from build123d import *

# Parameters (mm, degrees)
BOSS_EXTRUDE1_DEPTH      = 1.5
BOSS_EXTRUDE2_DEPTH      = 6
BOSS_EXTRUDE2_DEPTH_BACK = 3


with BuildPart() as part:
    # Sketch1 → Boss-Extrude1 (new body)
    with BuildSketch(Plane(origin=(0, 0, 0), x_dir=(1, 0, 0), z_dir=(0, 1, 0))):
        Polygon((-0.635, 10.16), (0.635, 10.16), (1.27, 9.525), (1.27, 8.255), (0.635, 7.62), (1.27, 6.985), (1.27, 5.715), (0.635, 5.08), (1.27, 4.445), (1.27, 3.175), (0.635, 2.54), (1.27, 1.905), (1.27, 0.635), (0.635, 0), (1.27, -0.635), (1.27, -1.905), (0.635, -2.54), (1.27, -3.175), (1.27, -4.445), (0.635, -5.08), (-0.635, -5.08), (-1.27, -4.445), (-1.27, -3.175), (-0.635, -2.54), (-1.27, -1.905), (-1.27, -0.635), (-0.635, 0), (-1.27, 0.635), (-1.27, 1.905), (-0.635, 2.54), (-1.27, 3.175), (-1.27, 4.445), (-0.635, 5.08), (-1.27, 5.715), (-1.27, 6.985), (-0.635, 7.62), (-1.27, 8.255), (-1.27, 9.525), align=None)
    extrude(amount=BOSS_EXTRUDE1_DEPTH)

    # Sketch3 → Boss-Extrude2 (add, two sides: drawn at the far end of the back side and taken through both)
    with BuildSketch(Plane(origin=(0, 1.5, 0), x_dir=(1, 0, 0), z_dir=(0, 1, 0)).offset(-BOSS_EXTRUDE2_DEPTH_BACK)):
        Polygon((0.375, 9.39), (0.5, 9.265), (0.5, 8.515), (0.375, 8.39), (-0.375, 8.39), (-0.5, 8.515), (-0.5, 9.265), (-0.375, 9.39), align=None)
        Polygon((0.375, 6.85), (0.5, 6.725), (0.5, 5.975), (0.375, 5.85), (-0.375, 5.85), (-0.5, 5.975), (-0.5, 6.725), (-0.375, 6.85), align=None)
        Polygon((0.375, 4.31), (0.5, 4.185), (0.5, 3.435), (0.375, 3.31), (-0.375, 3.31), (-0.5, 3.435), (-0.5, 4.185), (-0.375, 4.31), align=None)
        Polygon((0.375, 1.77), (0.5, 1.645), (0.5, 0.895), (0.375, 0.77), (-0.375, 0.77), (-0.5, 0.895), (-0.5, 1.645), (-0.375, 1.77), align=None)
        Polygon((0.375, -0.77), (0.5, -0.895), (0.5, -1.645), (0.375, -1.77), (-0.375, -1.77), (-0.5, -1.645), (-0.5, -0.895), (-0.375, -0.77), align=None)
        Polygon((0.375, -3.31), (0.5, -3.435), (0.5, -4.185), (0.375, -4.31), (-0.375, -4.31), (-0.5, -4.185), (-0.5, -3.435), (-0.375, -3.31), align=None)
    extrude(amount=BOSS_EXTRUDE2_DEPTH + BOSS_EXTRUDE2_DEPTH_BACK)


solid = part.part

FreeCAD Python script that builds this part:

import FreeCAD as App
import Part
import Sketcher

V = App.Vector

doc = App.newDocument("Part")
body = doc.addObject("PartDesign::Body", "Body")

sketch1 = body.newObject("Sketcher::SketchObject", "Sketch")
sketch1.AttachmentSupport = (doc.getObject("XZ_Plane"), [""])
sketch1.MapMode = "FlatFace"
sketch1.addGeometry(Part.LineSegment(V(0.6, -10.2, 0), V(-0.6, -10.2, 0)), False)
sketch1.addGeometry(Part.LineSegment(V(-0.6, -10.2, 0), V(-1.3, -9.5, 0)), False)
sketch1.addGeometry(Part.LineSegment(V(-1.3, -9.5, 0), V(-1.3, -8.3, 0)), False)
sketch1.addGeometry(Part.LineSegment(V(-1.3, -8.3, 0), V(-0.6, -7.6, 0)), False)
sketch1.addGeometry(Part.LineSegment(V(-0.6, -7.6, 0), V(-1.3, -7, 0)), False)
sketch1.addGeometry(Part.LineSegment(V(-1.3, -7, 0), V(-1.3, -5.7, 0)), False)
sketch1.addGeometry(Part.LineSegment(V(-1.3, -5.7, 0), V(-0.6, -5.1, 0)), False)
sketch1.addGeometry(Part.LineSegment(V(-0.6, -5.1, 0), V(-1.3, -4.4, 0)), False)
sketch1.addGeometry(Part.LineSegment(V(-1.3, -4.4, 0), V(-1.3, -3.2, 0)), False)
sketch1.addGeometry(Part.LineSegment(V(-1.3, -3.2, 0), V(-0.6, -2.5, 0)), False)
sketch1.addGeometry(Part.LineSegment(V(-0.6, -2.5, 0), V(-1.3, -1.9, 0)), False)
sketch1.addGeometry(Part.LineSegment(V(-1.3, -1.9, 0), V(-1.3, -0.6, 0)), False)
sketch1.addGeometry(Part.LineSegment(V(-1.3, -0.6, 0), V(-0.6, 0, 0)), False)
sketch1.addGeometry(Part.LineSegment(V(-0.6, 0, 0), V(-1.3, 0.6, 0)), False)
sketch1.addGeometry(Part.LineSegment(V(-1.3, 0.6, 0), V(-1.3, 1.9, 0)), False)
sketch1.addGeometry(Part.LineSegment(V(-1.3, 1.9, 0), V(-0.6, 2.5, 0)), False)
sketch1.addGeometry(Part.LineSegment(V(-0.6, 2.5, 0), V(-1.3, 3.2, 0)), False)
sketch1.addGeometry(Part.LineSegment(V(-1.3, 3.2, 0), V(-1.3, 4.4, 0)), False)
sketch1.addGeometry(Part.LineSegment(V(-1.3, 4.4, 0), V(-0.6, 5.1, 0)), False)
sketch1.addGeometry(Part.LineSegment(V(-0.6, 5.1, 0), V(0.6, 5.1, 0)), False)
sketch1.addGeometry(Part.LineSegment(V(0.6, 5.1, 0), V(1.3, 4.4, 0)), False)
sketch1.addGeometry(Part.LineSegment(V(1.3, 4.4, 0), V(1.3, 3.2, 0)), False)
sketch1.addGeometry(Part.LineSegment(V(1.3, 3.2, 0), V(0.6, 2.5, 0)), False)
sketch1.addGeometry(Part.LineSegment(V(0.6, 2.5, 0), V(1.3, 1.9, 0)), False)
sketch1.addGeometry(Part.LineSegment(V(1.3, 1.9, 0), V(1.3, 0.6, 0)), False)
sketch1.addGeometry(Part.LineSegment(V(1.3, 0.6, 0), V(0.6, 0, 0)), False)
sketch1.addGeometry(Part.LineSegment(V(0.6, 0, 0), V(1.3, -0.6, 0)), False)
sketch1.addGeometry(Part.LineSegment(V(1.3, -0.6, 0), V(1.3, -1.9, 0)), False)
sketch1.addGeometry(Part.LineSegment(V(1.3, -1.9, 0), V(0.6, -2.5, 0)), False)
sketch1.addGeometry(Part.LineSegment(V(0.6, -2.5, 0), V(1.3, -3.2, 0)), False)
sketch1.addGeometry(Part.LineSegment(V(1.3, -3.2, 0), V(1.3, -4.4, 0)), False)
sketch1.addGeometry(Part.LineSegment(V(1.3, -4.4, 0), V(0.6, -5.1, 0)), False)
sketch1.addGeometry(Part.LineSegment(V(0.6, -5.1, 0), V(1.3, -5.7, 0)), False)
sketch1.addGeometry(Part.LineSegment(V(1.3, -5.7, 0), V(1.3, -7, 0)), False)
sketch1.addGeometry(Part.LineSegment(V(1.3, -7, 0), V(0.6, -7.6, 0)), False)
sketch1.addGeometry(Part.LineSegment(V(0.6, -7.6, 0), V(1.3, -8.3, 0)), False)
sketch1.addGeometry(Part.LineSegment(V(1.3, -8.3, 0), V(1.3, -9.5, 0)), False)
sketch1.addGeometry(Part.LineSegment(V(1.3, -9.5, 0), V(0.6, -10.2, 0)), False)
sketch1.addConstraint(Sketcher.Constraint("Coincident", 0, 2, 1, 1))
sketch1.addConstraint(Sketcher.Constraint("Coincident", 1, 2, 2, 1))
sketch1.addConstraint(Sketcher.Constraint("Coincident", 2, 2, 3, 1))
sketch1.addConstraint(Sketcher.Constraint("Coincident", 3, 2, 4, 1))
sketch1.addConstraint(Sketcher.Constraint("Coincident", 4, 2, 5, 1))
sketch1.addConstraint(Sketcher.Constraint("Coincident", 5, 2, 6, 1))
sketch1.addConstraint(Sketcher.Constraint("Coincident", 6, 2, 7, 1))
sketch1.addConstraint(Sketcher.Constraint("Coincident", 7, 2, 8, 1))
sketch1.addConstraint(Sketcher.Constraint("Coincident", 8, 2, 9, 1))
sketch1.addConstraint(Sketcher.Constraint("Coincident", 9, 2, 10, 1))
sketch1.addConstraint(Sketcher.Constraint("Coincident", 10, 2, 11, 1))
sketch1.addConstraint(Sketcher.Constraint("Coincident", 11, 2, 12, 1))
sketch1.addConstraint(Sketcher.Constraint("Coincident", 12, 2, 13, 1))
sketch1.addConstraint(Sketcher.Constraint("Coincident", 13, 2, 14, 1))
sketch1.addConstraint(Sketcher.Constraint("Coincident", 14, 2, 15, 1))
sketch1.addConstraint(Sketcher.Constraint("Coincident", 15, 2, 16, 1))
sketch1.addConstraint(Sketcher.Constraint("Coincident", 16, 2, 17, 1))
sketch1.addConstraint(Sketcher.Constraint("Coincident", 17, 2, 18, 1))
sketch1.addConstraint(Sketcher.Constraint("Coincident", 18, 2, 19, 1))
sketch1.addConstraint(Sketcher.Constraint("Coincident", 19, 2, 20, 1))
sketch1.addConstraint(Sketcher.Constraint("Coincident", 20, 2, 21, 1))
sketch1.addConstraint(Sketcher.Constraint("Coincident", 21, 2, 22, 1))
sketch1.addConstraint(Sketcher.Constraint("Coincident", 22, 2, 23, 1))
sketch1.addConstraint(Sketcher.Constraint("Coincident", 23, 2, 24, 1))
sketch1.addConstraint(Sketcher.Constraint("Coincident", 24, 2, 25, 1))
sketch1.addConstraint(Sketcher.Constraint("Coincident", 25, 2, 26, 1))
sketch1.addConstraint(Sketcher.Constraint("Coincident", 26, 2, 27, 1))
sketch1.addConstraint(Sketcher.Constraint("Coincident", 27, 2, 28, 1))
sketch1.addConstraint(Sketcher.Constraint("Coincident", 28, 2, 29, 1))
sketch1.addConstraint(Sketcher.Constraint("Coincident", 29, 2, 30, 1))
sketch1.addConstraint(Sketcher.Constraint("Coincident", 30, 2, 31, 1))
sketch1.addConstraint(Sketcher.Constraint("Coincident", 31, 2, 32, 1))
sketch1.addConstraint(Sketcher.Constraint("Coincident", 32, 2, 33, 1))
sketch1.addConstraint(Sketcher.Constraint("Coincident", 33, 2, 34, 1))
sketch1.addConstraint(Sketcher.Constraint("Coincident", 34, 2, 35, 1))
sketch1.addConstraint(Sketcher.Constraint("Coincident", 35, 2, 36, 1))
sketch1.addConstraint(Sketcher.Constraint("Coincident", 36, 2, 37, 1))
sketch1.addConstraint(Sketcher.Constraint("Coincident", 37, 2, 0, 1))
sketch1.addConstraint(Sketcher.Constraint("Horizontal", 0))
sketch1.addConstraint(Sketcher.Constraint("Vertical", 2))
sketch1.addConstraint(Sketcher.Constraint("Vertical", 5))
sketch1.addConstraint(Sketcher.Constraint("Vertical", 8))
sketch1.addConstraint(Sketcher.Constraint("Vertical", 11))
sketch1.addConstraint(Sketcher.Constraint("Vertical", 14))
sketch1.addConstraint(Sketcher.Constraint("Vertical", 17))
sketch1.addConstraint(Sketcher.Constraint("Horizontal", 19))
sketch1.addConstraint(Sketcher.Constraint("Vertical", 21))
sketch1.addConstraint(Sketcher.Constraint("Vertical", 24))
sketch1.addConstraint(Sketcher.Constraint("Vertical", 27))
sketch1.addConstraint(Sketcher.Constraint("Vertical", 30))
sketch1.addConstraint(Sketcher.Constraint("Vertical", 33))
sketch1.addConstraint(Sketcher.Constraint("Vertical", 36))
sketch1.addConstraint(Sketcher.Constraint("Symmetric", 6, 2, 19, 2, -1, 1))
sketch1.addConstraint(Sketcher.Constraint("Symmetric", 7, 2, 20, 2, -1, 1))
sketch1.addConstraint(Sketcher.Constraint("Symmetric", 9, 2, 22, 2, -1, 1))
sketch1.addConstraint(Sketcher.Constraint("Symmetric", 10, 2, 23, 2, -1, 1))
sketch1.addConstraint(Sketcher.Constraint("Symmetric", 12, 2, 25, 2, -1, 1))
sketch1.addConstraint(Sketcher.Constraint("Symmetric", 13, 2, 26, 2, -1, 1))
sketch1.addConstraint(Sketcher.Constraint("Symmetric", 15, 2, 28, 2, -1, 1))
sketch1.addConstraint(Sketcher.Constraint("Symmetric", 16, 2, 29, 2, -1, 1))
sketch1.addConstraint(Sketcher.Constraint("Symmetric", 18, 2, 31, 2, -1, 1))
sketch1.addConstraint(Sketcher.Constraint("Symmetric", 17, 2, 20, 2, -2))
sketch1.addConstraint(Sketcher.Constraint("Symmetric", 15, 2, 22, 2, -2))
sketch1.addConstraint(Sketcher.Constraint("Symmetric", 14, 2, 23, 2, -2))
sketch1.addConstraint(Sketcher.Constraint("Symmetric", 5, 2, 32, 2, -2))
sketch1.addConstraint(Sketcher.Constraint("Symmetric", 3, 2, 34, 2, -2))
sketch1.addConstraint(Sketcher.Constraint("Symmetric", 2, 2, 35, 2, -2))
sketch1.addConstraint(Sketcher.Constraint("PointOnObject", 12, 2, -1))
sketch1.addConstraint(Sketcher.Constraint("Perpendicular", 1, 3))
sketch1.addConstraint(Sketcher.Constraint("Perpendicular", 3, 4))
sketch1.addConstraint(Sketcher.Constraint("Perpendicular", 4, 6))
sketch1.addConstraint(Sketcher.Constraint("Perpendicular", 6, 7))
sketch1.addConstraint(Sketcher.Constraint("Perpendicular", 7, 9))
sketch1.addConstraint(Sketcher.Constraint("Perpendicular", 9, 10))
sketch1.addConstraint(Sketcher.Constraint("Perpendicular", 10, 12))
sketch1.addConstraint(Sketcher.Constraint("Perpendicular", 12, 13))
sketch1.addConstraint(Sketcher.Constraint("Perpendicular", 13, 15))
sketch1.addConstraint(Sketcher.Constraint("Perpendicular", 15, 16))
sketch1.addConstraint(Sketcher.Constraint("Perpendicular", 16, 18))
sketch1.addConstraint(Sketcher.Constraint("Perpendicular", 20, 22))
sketch1.addConstraint(Sketcher.Constraint("Perpendicular", 23, 25))
sketch1.addConstraint(Sketcher.Constraint("Perpendicular", 26, 28))
sketch1.addConstraint(Sketcher.Constraint("Perpendicular", 29, 31))
sketch1.addConstraint(Sketcher.Constraint("Perpendicular", 32, 34))
sketch1.addConstraint(Sketcher.Constraint("Perpendicular", 35, 37))
sketch1.addConstraint(Sketcher.Constraint("Horizontal", 1, 2, 36, 2))
sketch1.addConstraint(Sketcher.Constraint("Vertical", 0, 2, 3, 2))
sketch1.addConstraint(Sketcher.Constraint("Vertical", 2, 2, 4, 2))
sketch1.addConstraint(Sketcher.Constraint("Vertical", 3, 2, 6, 2))
sketch1.addConstraint(Sketcher.Constraint("Vertical", 5, 2, 7, 2))
sketch1.addConstraint(Sketcher.Constraint("Vertical", 6, 2, 9, 2))
sketch1.addConstraint(Sketcher.Constraint("Vertical", 8, 2, 10, 2))
sketch1.addConstraint(Sketcher.Constraint("Vertical", 9, 2, 12, 2))
sketch1.addConstraint(Sketcher.Constraint("Equal", 19, 2))
sketch1.addConstraint(Sketcher.Constraint("Equal", 2, 5))
sketch1.addConstraint(Sketcher.Constraint("Equal", 5, 8))
sketch1.addConstraint(Sketcher.Constraint("Equal", 8, 11))
sketch1.addConstraint(Sketcher.Constraint("DistanceX", 0, 2, 0, 1, 1.27))
sketch1.addConstraint(Sketcher.Constraint("DistanceY", 0, 2, -1, 1, 10.16))
pad1 = body.newObject("PartDesign::Pad", "Pad")
pad1.Profile = sketch1
pad1.Length = 1.5
pad1.Reversed = True

sketch2 = body.newObject("Sketcher::SketchObject", "Sketch001")
sketch2.AttachmentSupport = (doc.getObject("XZ_Plane"), [""])
sketch2.MapMode = "FlatFace"
sketch2.AttachmentOffset = App.Placement(V(0, 0, -1.5), App.Rotation())
sketch2.addGeometry(Part.LineSegment(V(0.5, -9.27, 0), V(0.38, -9.39, 0)), False)
sketch2.addGeometry(Part.LineSegment(V(0.38, -9.39, 0), V(-0.38, -9.39, 0)), False)
sketch2.addGeometry(Part.LineSegment(V(-0.38, -9.39, 0), V(-0.5, -9.27, 0)), False)
sketch2.addGeometry(Part.LineSegment(V(-0.5, -9.27, 0), V(-0.5, -8.52, 0)), False)
sketch2.addGeometry(Part.LineSegment(V(-0.5, -8.52, 0), V(-0.38, -8.39, 0)), False)
sketch2.addGeometry(Part.LineSegment(V(-0.38, -8.39, 0), V(0.38, -8.39, 0)), False)
sketch2.addGeometry(Part.LineSegment(V(0.38, -8.39, 0), V(0.5, -8.52, 0)), False)
sketch2.addGeometry(Part.LineSegment(V(0.5, -8.52, 0), V(0.5, -9.27, 0)), False)
sketch2.addGeometry(Part.LineSegment(V(0.5, -6.72, 0), V(0.38, -6.85, 0)), False)
sketch2.addGeometry(Part.LineSegment(V(0.38, -6.85, 0), V(-0.38, -6.85, 0)), False)
sketch2.addGeometry(Part.LineSegment(V(-0.38, -6.85, 0), V(-0.5, -6.72, 0)), False)
sketch2.addGeometry(Part.LineSegment(V(-0.5, -6.72, 0), V(-0.5, -5.97, 0)), False)
sketch2.addGeometry(Part.LineSegment(V(-0.5, -5.97, 0), V(-0.38, -5.85, 0)), False)
sketch2.addGeometry(Part.LineSegment(V(-0.38, -5.85, 0), V(0.38, -5.85, 0)), False)
sketch2.addGeometry(Part.LineSegment(V(0.38, -5.85, 0), V(0.5, -5.97, 0)), False)
sketch2.addGeometry(Part.LineSegment(V(0.5, -5.97, 0), V(0.5, -6.72, 0)), False)
sketch2.addGeometry(Part.LineSegment(V(0.5, -4.18, 0), V(0.38, -4.31, 0)), False)
sketch2.addGeometry(Part.LineSegment(V(0.38, -4.31, 0), V(-0.38, -4.31, 0)), False)
sketch2.addGeometry(Part.LineSegment(V(-0.38, -4.31, 0), V(-0.5, -4.18, 0)), False)
sketch2.addGeometry(Part.LineSegment(V(-0.5, -4.18, 0), V(-0.5, -3.44, 0)), False)
sketch2.addGeometry(Part.LineSegment(V(-0.5, -3.44, 0), V(-0.38, -3.31, 0)), False)
sketch2.addGeometry(Part.LineSegment(V(-0.38, -3.31, 0), V(0.38, -3.31, 0)), False)
sketch2.addGeometry(Part.LineSegment(V(0.38, -3.31, 0), V(0.5, -3.44, 0)), False)
sketch2.addGeometry(Part.LineSegment(V(0.5, -3.44, 0), V(0.5, -4.18, 0)), False)
sketch2.addGeometry(Part.LineSegment(V(0.5, -1.65, 0), V(0.38, -1.77, 0)), False)
sketch2.addGeometry(Part.LineSegment(V(0.38, -1.77, 0), V(-0.38, -1.77, 0)), False)
sketch2.addGeometry(Part.LineSegment(V(-0.38, -1.77, 0), V(-0.5, -1.65, 0)), False)
sketch2.addGeometry(Part.LineSegment(V(-0.5, -1.65, 0), V(-0.5, -0.9, 0)), False)
sketch2.addGeometry(Part.LineSegment(V(-0.5, -0.9, 0), V(-0.38, -0.77, 0)), False)
sketch2.addGeometry(Part.LineSegment(V(-0.38, -0.77, 0), V(0.38, -0.77, 0)), False)
sketch2.addGeometry(Part.LineSegment(V(0.38, -0.77, 0), V(0.5, -0.9, 0)), False)
sketch2.addGeometry(Part.LineSegment(V(0.5, -0.9, 0), V(0.5, -1.65, 0)), False)
sketch2.addGeometry(Part.LineSegment(V(0.5, 0.9, 0), V(0.38, 0.77, 0)), False)
sketch2.addGeometry(Part.LineSegment(V(0.38, 0.77, 0), V(-0.38, 0.77, 0)), False)
sketch2.addGeometry(Part.LineSegment(V(-0.38, 0.77, 0), V(-0.5, 0.9, 0)), False)
sketch2.addGeometry(Part.LineSegment(V(-0.5, 0.9, 0), V(-0.5, 1.65, 0)), False)
sketch2.addGeometry(Part.LineSegment(V(-0.5, 1.65, 0), V(-0.38, 1.77, 0)), False)
sketch2.addGeometry(Part.LineSegment(V(-0.38, 1.77, 0), V(0.38, 1.77, 0)), False)
sketch2.addGeometry(Part.LineSegment(V(0.38, 1.77, 0), V(0.5, 1.65, 0)), False)
sketch2.addGeometry(Part.LineSegment(V(0.5, 1.65, 0), V(0.5, 0.9, 0)), False)
sketch2.addGeometry(Part.LineSegment(V(0.5, 3.44, 0), V(0.38, 3.31, 0)), False)
sketch2.addGeometry(Part.LineSegment(V(0.38, 3.31, 0), V(-0.38, 3.31, 0)), False)
sketch2.addGeometry(Part.LineSegment(V(-0.38, 3.31, 0), V(-0.5, 3.44, 0)), False)
sketch2.addGeometry(Part.LineSegment(V(-0.5, 3.44, 0), V(-0.5, 4.18, 0)), False)
sketch2.addGeometry(Part.LineSegment(V(-0.5, 4.18, 0), V(-0.38, 4.31, 0)), False)
sketch2.addGeometry(Part.LineSegment(V(-0.38, 4.31, 0), V(0.38, 4.31, 0)), False)
sketch2.addGeometry(Part.LineSegment(V(0.38, 4.31, 0), V(0.5, 4.18, 0)), False)
sketch2.addGeometry(Part.LineSegment(V(0.5, 4.18, 0), V(0.5, 3.44, 0)), False)
sketch2.addConstraint(Sketcher.Constraint("Coincident", 0, 2, 1, 1))
sketch2.addConstraint(Sketcher.Constraint("Coincident", 1, 2, 2, 1))
sketch2.addConstraint(Sketcher.Constraint("Coincident", 2, 2, 3, 1))
sketch2.addConstraint(Sketcher.Constraint("Coincident", 3, 2, 4, 1))
sketch2.addConstraint(Sketcher.Constraint("Coincident", 4, 2, 5, 1))
sketch2.addConstraint(Sketcher.Constraint("Coincident", 5, 2, 6, 1))
sketch2.addConstraint(Sketcher.Constraint("Coincident", 6, 2, 7, 1))
sketch2.addConstraint(Sketcher.Constraint("Coincident", 7, 2, 0, 1))
sketch2.addConstraint(Sketcher.Constraint("Coincident", 8, 2, 9, 1))
sketch2.addConstraint(Sketcher.Constraint("Coincident", 9, 2, 10, 1))
sketch2.addConstraint(Sketcher.Constraint("Coincident", 10, 2, 11, 1))
sketch2.addConstraint(Sketcher.Constraint("Coincident", 11, 2, 12, 1))
sketch2.addConstraint(Sketcher.Constraint("Coincident", 12, 2, 13, 1))
sketch2.addConstraint(Sketcher.Constraint("Coincident", 13, 2, 14, 1))
sketch2.addConstraint(Sketcher.Constraint("Coincident", 14, 2, 15, 1))
sketch2.addConstraint(Sketcher.Constraint("Coincident", 15, 2, 8, 1))
sketch2.addConstraint(Sketcher.Constraint("Coincident", 16, 2, 17, 1))
sketch2.addConstraint(Sketcher.Constraint("Coincident", 17, 2, 18, 1))
sketch2.addConstraint(Sketcher.Constraint("Coincident", 18, 2, 19, 1))
sketch2.addConstraint(Sketcher.Constraint("Coincident", 19, 2, 20, 1))
sketch2.addConstraint(Sketcher.Constraint("Coincident", 20, 2, 21, 1))
sketch2.addConstraint(Sketcher.Constraint("Coincident", 21, 2, 22, 1))
sketch2.addConstraint(Sketcher.Constraint("Coincident", 22, 2, 23, 1))
sketch2.addConstraint(Sketcher.Constraint("Coincident", 23, 2, 16, 1))
sketch2.addConstraint(Sketcher.Constraint("Coincident", 24, 2, 25, 1))
sketch2.addConstraint(Sketcher.Constraint("Coincident", 25, 2, 26, 1))
sketch2.addConstraint(Sketcher.Constraint("Coincident", 26, 2, 27, 1))
sketch2.addConstraint(Sketcher.Constraint("Coincident", 27, 2, 28, 1))
sketch2.addConstraint(Sketcher.Constraint("Coincident", 28, 2, 29, 1))
sketch2.addConstraint(Sketcher.Constraint("Coincident", 29, 2, 30, 1))
sketch2.addConstraint(Sketcher.Constraint("Coincident", 30, 2, 31, 1))
sketch2.addConstraint(Sketcher.Constraint("Coincident", 31, 2, 24, 1))
sketch2.addConstraint(Sketcher.Constraint("Coincident", 32, 2, 33, 1))
sketch2.addConstraint(Sketcher.Constraint("Coincident", 33, 2, 34, 1))
sketch2.addConstraint(Sketcher.Constraint("Coincident", 34, 2, 35, 1))
sketch2.addConstraint(Sketcher.Constraint("Coincident", 35, 2, 36, 1))
sketch2.addConstraint(Sketcher.Constraint("Coincident", 36, 2, 37, 1))
sketch2.addConstraint(Sketcher.Constraint("Coincident", 37, 2, 38, 1))
sketch2.addConstraint(Sketcher.Constraint("Coincident", 38, 2, 39, 1))
sketch2.addConstraint(Sketcher.Constraint("Coincident", 39, 2, 32, 1))
sketch2.addConstraint(Sketcher.Constraint("Coincident", 40, 2, 41, 1))
sketch2.addConstraint(Sketcher.Constraint("Coincident", 41, 2, 42, 1))
sketch2.addConstraint(Sketcher.Constraint("Coincident", 42, 2, 43, 1))
sketch2.addConstraint(Sketcher.Constraint("Coincident", 43, 2, 44, 1))
sketch2.addConstraint(Sketcher.Constraint("Coincident", 44, 2, 45, 1))
sketch2.addConstraint(Sketcher.Constraint("Coincident", 45, 2, 46, 1))
sketch2.addConstraint(Sketcher.Constraint("Coincident", 46, 2, 47, 1))
sketch2.addConstraint(Sketcher.Constraint("Coincident", 47, 2, 40, 1))
sketch2.addConstraint(Sketcher.Constraint("Horizontal", 1))
sketch2.addConstraint(Sketcher.Constraint("Vertical", 3))
sketch2.addConstraint(Sketcher.Constraint("Horizontal", 5))
sketch2.addConstraint(Sketcher.Constraint("Vertical", 7))
sketch2.addConstraint(Sketcher.Constraint("Horizontal", 9))
sketch2.addConstraint(Sketcher.Constraint("Vertical", 11))
sketch2.addConstraint(Sketcher.Constraint("Horizontal", 13))
sketch2.addConstraint(Sketcher.Constraint("Vertical", 15))
sketch2.addConstraint(Sketcher.Constraint("Horizontal", 17))
sketch2.addConstraint(Sketcher.Constraint("Vertical", 19))
sketch2.addConstraint(Sketcher.Constraint("Horizontal", 21))
sketch2.addConstraint(Sketcher.Constraint("Vertical", 23))
sketch2.addConstraint(Sketcher.Constraint("Horizontal", 25))
sketch2.addConstraint(Sketcher.Constraint("Vertical", 27))
sketch2.addConstraint(Sketcher.Constraint("Horizontal", 29))
sketch2.addConstraint(Sketcher.Constraint("Vertical", 31))
sketch2.addConstraint(Sketcher.Constraint("Horizontal", 33))
sketch2.addConstraint(Sketcher.Constraint("Vertical", 35))
sketch2.addConstraint(Sketcher.Constraint("Horizontal", 37))
sketch2.addConstraint(Sketcher.Constraint("Vertical", 39))
sketch2.addConstraint(Sketcher.Constraint("Horizontal", 41))
sketch2.addConstraint(Sketcher.Constraint("Vertical", 43))
sketch2.addConstraint(Sketcher.Constraint("Horizontal", 45))
sketch2.addConstraint(Sketcher.Constraint("Vertical", 47))
sketch2.addConstraint(Sketcher.Constraint("Symmetric", 28, 2, 32, 2, -1, 1))
sketch2.addConstraint(Sketcher.Constraint("Symmetric", 30, 2, 34, 2, -1, 1))
sketch2.addConstraint(Sketcher.Constraint("Symmetric", 24, 2, 36, 2, -1, 1))
sketch2.addConstraint(Sketcher.Constraint("Symmetric", 26, 2, 38, 2, -1, 1))
sketch2.addConstraint(Sketcher.Constraint("Symmetric", 20, 2, 40, 2, -1, 1))
sketch2.addConstraint(Sketcher.Constraint("Symmetric", 22, 2, 42, 2, -1, 1))
sketch2.addConstraint(Sketcher.Constraint("Symmetric", 16, 2, 44, 2, -1, 1))
sketch2.addConstraint(Sketcher.Constraint("Symmetric", 18, 2, 46, 2, -1, 1))
sketch2.addConstraint(Sketcher.Constraint("Symmetric", 3, 2, 6, 2, -2))
sketch2.addConstraint(Sketcher.Constraint("Symmetric", 11, 2, 14, 2, -2))
sketch2.addConstraint(Sketcher.Constraint("Symmetric", 19, 2, 22, 2, -2))
sketch2.addConstraint(Sketcher.Constraint("Symmetric", 27, 2, 30, 2, -2))
sketch2.addConstraint(Sketcher.Constraint("Perpendicular", 0, 2))
sketch2.addConstraint(Sketcher.Constraint("Perpendicular", 2, 4))
sketch2.addConstraint(Sketcher.Constraint("Perpendicular", 4, 6))
sketch2.addConstraint(Sketcher.Constraint("Perpendicular", 6, 8))
sketch2.addConstraint(Sketcher.Constraint("Perpendicular", 8, 10))
sketch2.addConstraint(Sketcher.Constraint("Perpendicular", 10, 12))
sketch2.addConstraint(Sketcher.Constraint("Perpendicular", 12, 14))
sketch2.addConstraint(Sketcher.Constraint("Perpendicular", 14, 16))
sketch2.addConstraint(Sketcher.Constraint("Perpendicular", 16, 18))
sketch2.addConstraint(Sketcher.Constraint("Perpendicular", 18, 20))
sketch2.addConstraint(Sketcher.Constraint("Perpendicular", 20, 22))
sketch2.addConstraint(Sketcher.Constraint("Perpendicular", 22, 24))
sketch2.addConstraint(Sketcher.Constraint("Perpendicular", 24, 26))
sketch2.addConstraint(Sketcher.Constraint("Perpendicular", 26, 28))
sketch2.addConstraint(Sketcher.Constraint("Perpendicular", 28, 30))
sketch2.addConstraint(Sketcher.Constraint("Perpendicular", 30, 32))
sketch2.addConstraint(Sketcher.Constraint("Perpendicular", 32, 34))
sketch2.addConstraint(Sketcher.Constraint("Perpendicular", 34, 36))
sketch2.addConstraint(Sketcher.Constraint("Perpendicular", 36, 38))
sketch2.addConstraint(Sketcher.Constraint("Perpendicular", 38, 40))
sketch2.addConstraint(Sketcher.Constraint("Perpendicular", 40, 42))
sketch2.addConstraint(Sketcher.Constraint("Perpendicular", 42, 44))
sketch2.addConstraint(Sketcher.Constraint("Perpendicular", 44, 46))
sketch2.addConstraint(Sketcher.Constraint("Horizontal", 2, 2, 7, 2))
sketch2.addConstraint(Sketcher.Constraint("Horizontal", 10, 2, 15, 2))
sketch2.addConstraint(Sketcher.Constraint("Horizontal", 18, 2, 23, 2))
sketch2.addConstraint(Sketcher.Constraint("Horizontal", 26, 2, 31, 2))
sketch2.addConstraint(Sketcher.Constraint("Vertical", 1, 2, 4, 2))
sketch2.addConstraint(Sketcher.Constraint("Vertical", 0, 2, 5, 2))
sketch2.addConstraint(Sketcher.Constraint("Vertical", 5, 2, 8, 2))
sketch2.addConstraint(Sketcher.Constraint("Vertical", 3, 2, 10, 2))
sketch2.addConstraint(Sketcher.Constraint("Vertical", 9, 2, 12, 2))
sketch2.addConstraint(Sketcher.Constraint("Vertical", 13, 2, 16, 2))
sketch2.addConstraint(Sketcher.Constraint("Vertical", 11, 2, 18, 2))
sketch2.addConstraint(Sketcher.Constraint("Vertical", 17, 2, 20, 2))
sketch2.addConstraint(Sketcher.Constraint("Vertical", 21, 2, 24, 2))
sketch2.addConstraint(Sketcher.Constraint("Vertical", 19, 2, 26, 2))
sketch2.addConstraint(Sketcher.Constraint("Vertical", 25, 2, 28, 2))
sketch2.addConstraint(Sketcher.Constraint("Equal", 45, 3))
sketch2.addConstraint(Sketcher.Constraint("Equal", 7, 11))
sketch2.addConstraint(Sketcher.Constraint("Equal", 15, 19))
sketch2.addConstraint(Sketcher.Constraint("Equal", 23, 27))
sketch2.addConstraint(Sketcher.Constraint("DistanceY", 1, 2, 4, 2, 1.0))
sketch2.addConstraint(Sketcher.Constraint("DistanceX", 1, 2, 1, 1, 0.75))
sketch2.addConstraint(Sketcher.Constraint("DistanceY", 0, 2, -1, 1, 9.39))
sketch2.addConstraint(Sketcher.Constraint("DistanceY", 8, 2, -1, 1, 6.85))
sketch2.addConstraint(Sketcher.Constraint("DistanceY", 16, 2, -1, 1, 4.31))
sketch2.addConstraint(Sketcher.Constraint("DistanceY", 24, 2, -1, 1, 1.77))
pad2 = body.newObject("PartDesign::Pad", "Pad001")
pad2.Profile = sketch2
pad2.Type = "TwoLengths"
pad2.Length = 6
pad2.Length2 = 3
pad2.Reversed = True

doc.recompute()
